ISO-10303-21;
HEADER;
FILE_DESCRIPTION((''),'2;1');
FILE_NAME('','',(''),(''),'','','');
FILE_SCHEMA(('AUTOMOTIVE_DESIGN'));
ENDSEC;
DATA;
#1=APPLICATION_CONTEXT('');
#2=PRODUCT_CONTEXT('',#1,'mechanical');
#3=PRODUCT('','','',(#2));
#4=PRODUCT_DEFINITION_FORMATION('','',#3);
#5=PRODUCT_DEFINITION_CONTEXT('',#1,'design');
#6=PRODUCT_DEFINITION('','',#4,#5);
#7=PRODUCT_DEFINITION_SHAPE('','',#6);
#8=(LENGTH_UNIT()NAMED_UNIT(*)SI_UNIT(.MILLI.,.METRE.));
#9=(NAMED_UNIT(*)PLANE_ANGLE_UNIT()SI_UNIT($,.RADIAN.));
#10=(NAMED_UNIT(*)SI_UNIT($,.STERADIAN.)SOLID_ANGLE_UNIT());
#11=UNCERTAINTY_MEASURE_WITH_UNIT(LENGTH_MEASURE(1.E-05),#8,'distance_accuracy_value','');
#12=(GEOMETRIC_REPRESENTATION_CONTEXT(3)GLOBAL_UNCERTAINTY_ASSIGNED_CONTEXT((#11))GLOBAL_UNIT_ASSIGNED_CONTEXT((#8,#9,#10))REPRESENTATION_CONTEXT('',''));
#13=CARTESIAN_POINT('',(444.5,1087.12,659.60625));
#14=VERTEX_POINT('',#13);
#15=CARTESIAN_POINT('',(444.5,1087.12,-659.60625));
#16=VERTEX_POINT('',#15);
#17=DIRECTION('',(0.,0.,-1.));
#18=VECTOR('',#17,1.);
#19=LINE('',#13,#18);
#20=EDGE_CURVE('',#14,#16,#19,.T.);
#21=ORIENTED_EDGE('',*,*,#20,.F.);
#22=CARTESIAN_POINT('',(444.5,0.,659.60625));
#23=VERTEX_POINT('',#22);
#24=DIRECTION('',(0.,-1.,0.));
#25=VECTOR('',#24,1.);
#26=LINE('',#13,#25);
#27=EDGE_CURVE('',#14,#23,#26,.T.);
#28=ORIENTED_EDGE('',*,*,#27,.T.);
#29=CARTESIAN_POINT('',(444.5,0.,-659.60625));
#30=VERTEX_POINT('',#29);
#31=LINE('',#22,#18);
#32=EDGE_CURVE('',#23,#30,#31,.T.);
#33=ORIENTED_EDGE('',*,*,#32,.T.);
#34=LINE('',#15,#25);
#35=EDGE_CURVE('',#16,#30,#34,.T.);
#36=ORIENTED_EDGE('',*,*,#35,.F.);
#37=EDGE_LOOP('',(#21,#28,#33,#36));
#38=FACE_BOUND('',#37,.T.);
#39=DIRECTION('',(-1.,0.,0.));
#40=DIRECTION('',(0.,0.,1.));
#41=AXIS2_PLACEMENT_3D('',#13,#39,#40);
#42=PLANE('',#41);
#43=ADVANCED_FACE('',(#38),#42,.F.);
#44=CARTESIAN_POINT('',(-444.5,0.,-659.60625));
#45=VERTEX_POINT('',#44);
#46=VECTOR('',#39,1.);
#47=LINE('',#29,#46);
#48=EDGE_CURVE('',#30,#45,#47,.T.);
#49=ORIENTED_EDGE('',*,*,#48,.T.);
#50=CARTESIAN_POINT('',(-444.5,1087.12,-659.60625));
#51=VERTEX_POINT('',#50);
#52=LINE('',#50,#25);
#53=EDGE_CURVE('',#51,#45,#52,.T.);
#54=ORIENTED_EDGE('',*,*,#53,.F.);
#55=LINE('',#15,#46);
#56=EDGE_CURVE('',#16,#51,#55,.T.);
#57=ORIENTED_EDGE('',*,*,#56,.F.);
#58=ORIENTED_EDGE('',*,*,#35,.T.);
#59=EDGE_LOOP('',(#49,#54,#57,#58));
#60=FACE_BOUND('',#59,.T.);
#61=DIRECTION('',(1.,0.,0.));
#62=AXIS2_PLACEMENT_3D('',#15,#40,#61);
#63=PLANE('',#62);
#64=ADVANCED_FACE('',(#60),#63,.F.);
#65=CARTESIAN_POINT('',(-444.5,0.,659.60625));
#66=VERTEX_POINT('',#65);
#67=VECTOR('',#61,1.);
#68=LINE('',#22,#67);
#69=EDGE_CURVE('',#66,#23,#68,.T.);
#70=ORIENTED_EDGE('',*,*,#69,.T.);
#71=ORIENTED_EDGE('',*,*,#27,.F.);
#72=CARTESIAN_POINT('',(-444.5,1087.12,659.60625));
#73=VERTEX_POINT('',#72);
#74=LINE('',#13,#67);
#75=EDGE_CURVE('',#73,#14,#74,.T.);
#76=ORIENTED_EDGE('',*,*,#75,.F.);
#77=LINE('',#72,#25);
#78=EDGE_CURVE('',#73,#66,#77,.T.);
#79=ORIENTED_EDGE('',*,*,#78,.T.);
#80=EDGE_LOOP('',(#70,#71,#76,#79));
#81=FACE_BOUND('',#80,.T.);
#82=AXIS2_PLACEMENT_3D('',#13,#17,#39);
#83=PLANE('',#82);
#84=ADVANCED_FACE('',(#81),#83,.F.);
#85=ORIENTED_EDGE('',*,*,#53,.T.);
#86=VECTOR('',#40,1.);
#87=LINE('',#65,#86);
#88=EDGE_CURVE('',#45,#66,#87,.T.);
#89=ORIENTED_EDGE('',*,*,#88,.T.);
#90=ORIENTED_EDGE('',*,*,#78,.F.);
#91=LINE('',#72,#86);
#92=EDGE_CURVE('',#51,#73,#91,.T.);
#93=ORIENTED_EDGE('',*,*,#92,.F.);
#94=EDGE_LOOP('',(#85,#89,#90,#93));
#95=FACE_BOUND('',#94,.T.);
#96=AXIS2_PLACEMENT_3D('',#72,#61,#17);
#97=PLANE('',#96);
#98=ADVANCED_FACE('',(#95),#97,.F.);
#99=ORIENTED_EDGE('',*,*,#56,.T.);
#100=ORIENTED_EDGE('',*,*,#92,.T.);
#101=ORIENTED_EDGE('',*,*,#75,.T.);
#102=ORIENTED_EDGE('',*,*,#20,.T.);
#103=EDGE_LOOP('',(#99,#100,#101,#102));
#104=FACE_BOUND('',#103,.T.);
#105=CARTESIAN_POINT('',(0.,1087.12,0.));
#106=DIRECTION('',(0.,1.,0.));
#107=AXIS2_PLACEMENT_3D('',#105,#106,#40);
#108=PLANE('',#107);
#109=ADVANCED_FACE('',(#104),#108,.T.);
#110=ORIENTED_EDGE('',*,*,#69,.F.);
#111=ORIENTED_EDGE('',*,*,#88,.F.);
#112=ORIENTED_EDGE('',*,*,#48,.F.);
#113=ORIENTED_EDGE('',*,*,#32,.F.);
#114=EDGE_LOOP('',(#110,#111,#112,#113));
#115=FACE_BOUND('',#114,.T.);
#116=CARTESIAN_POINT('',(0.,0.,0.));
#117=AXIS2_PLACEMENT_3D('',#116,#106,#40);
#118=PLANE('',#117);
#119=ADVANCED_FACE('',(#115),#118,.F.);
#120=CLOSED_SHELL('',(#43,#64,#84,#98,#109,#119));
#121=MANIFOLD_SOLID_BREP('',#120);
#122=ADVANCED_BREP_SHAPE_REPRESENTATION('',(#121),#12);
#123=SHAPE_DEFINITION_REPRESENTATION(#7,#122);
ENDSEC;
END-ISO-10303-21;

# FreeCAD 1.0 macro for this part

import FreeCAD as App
import Part
import Sketcher
Q = App.Units.Quantity


def add_polygon(sketch, points):
    """Adds a closed chain of lines whose ends are joined by coincident constraints."""
    first, n = sketch.GeometryCount, len(points)
    for a, b in zip(points, points[1:] + points[:1]):
        sketch.addGeometry(Part.LineSegment(App.Vector(*a, 0), App.Vector(*b, 0)), False)
    for i in range(n):
        sketch.addConstraint(Sketcher.Constraint("Coincident", first + i, 2, first + (i + 1) % n, 1))

doc = App.newDocument("Part")
body = doc.addObject("PartDesign::Body", "Body")

sketch1 = body.newObject("Sketcher::SketchObject", "Sketch")
sketch1.AttachmentSupport = (doc.getObject("XZ_Plane"), [""])
sketch1.MapMode = "FlatFace"
add_polygon(sketch1, [(-444, -660), (-444, 660), (444, 660), (444, -660)])
sketch1.addConstraint(Sketcher.Constraint("Vertical", 0))
sketch1.addConstraint(Sketcher.Constraint("Horizontal", 1))
sketch1.addConstraint(Sketcher.Constraint("Vertical", 2))
sketch1.addConstraint(Sketcher.Constraint("Horizontal", 3))
sketch1.addConstraint(Sketcher.Constraint("Symmetric", 0, 2, 2, 2, -1, 1))
sketch1.addConstraint(Sketcher.Constraint("DistanceX", 1, 1, 1, 2, Q("35 in")))
sketch1.addConstraint(Sketcher.Constraint("DistanceY", 0, 1, 0, 2, Q("51.9375 in")))
pad1 = body.newObject("PartDesign::Pad", "Pad")
pad1.Profile = sketch1
pad1.Length = Q("42.8 in")
pad1.Reversed = True

doc.recompute()
